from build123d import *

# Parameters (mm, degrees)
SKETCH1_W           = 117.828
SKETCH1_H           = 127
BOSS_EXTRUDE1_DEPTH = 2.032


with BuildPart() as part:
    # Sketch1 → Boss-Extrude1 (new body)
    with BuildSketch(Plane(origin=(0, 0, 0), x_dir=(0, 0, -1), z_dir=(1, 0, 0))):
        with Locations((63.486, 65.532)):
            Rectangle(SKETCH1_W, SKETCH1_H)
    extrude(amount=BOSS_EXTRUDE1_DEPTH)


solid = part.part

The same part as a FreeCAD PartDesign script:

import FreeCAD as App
import Part
import Sketcher
from FreeCAD import Vector
Q = App.Units.Quantity


def add_polygon(sketch, points):
    """Adds a closed chain of lines whose ends are joined by coincident constraints."""
    first, n = sketch.GeometryCount, len(points)
    for a, b in zip(points, points[1:] + points[:1]):
        sketch.addGeometry(Part.LineSegment(App.Vector(*a, 0), App.Vector(*b, 0)), False)
    for i in range(n):
        sketch.addConstraint(Sketcher.Constraint("Coincident", first + i, 2, first + (i + 1) % n, 1))

doc = App.newDocument("Part")
body = doc.addObject("PartDesign::Body", "Body")

sketch1 = body.newObject("Sketcher::SketchObject", "Sketch")
sketch1.AttachmentSupport = (doc.getObject("YZ_Plane"), [""])
sketch1.MapMode = "FlatFace"
add_polygon(sketch1, [(129, -5), (2, -5), (2, -122), (129, -122)])
sketch1.addConstraint([
    Sketcher.Constraint("Horizontal", 0),
    Sketcher.Constraint("Vertical", 1),
    Sketcher.Constraint("Horizontal", 2),
    Sketcher.Constraint("Vertical", 3),
    Sketcher.Constraint("DistanceX", 0, 2, 0, 1, Q("5 in")),
    Sketcher.Constraint("DistanceX", -1, 1, 0, 2, Q("0.08 in")),
    Sketcher.Constraint("DistanceY", 0, 2, -1, 1, Q("0.18 in")),
    Sketcher.Constraint("DistanceY", 1, 2, 1, 1, Q("117.828 mm")),
])
pad1 = body.newObject("PartDesign::Pad", "Pad")
pad1.Profile = sketch1
pad1.Length = Q("0.08 in")

doc.recompute()
